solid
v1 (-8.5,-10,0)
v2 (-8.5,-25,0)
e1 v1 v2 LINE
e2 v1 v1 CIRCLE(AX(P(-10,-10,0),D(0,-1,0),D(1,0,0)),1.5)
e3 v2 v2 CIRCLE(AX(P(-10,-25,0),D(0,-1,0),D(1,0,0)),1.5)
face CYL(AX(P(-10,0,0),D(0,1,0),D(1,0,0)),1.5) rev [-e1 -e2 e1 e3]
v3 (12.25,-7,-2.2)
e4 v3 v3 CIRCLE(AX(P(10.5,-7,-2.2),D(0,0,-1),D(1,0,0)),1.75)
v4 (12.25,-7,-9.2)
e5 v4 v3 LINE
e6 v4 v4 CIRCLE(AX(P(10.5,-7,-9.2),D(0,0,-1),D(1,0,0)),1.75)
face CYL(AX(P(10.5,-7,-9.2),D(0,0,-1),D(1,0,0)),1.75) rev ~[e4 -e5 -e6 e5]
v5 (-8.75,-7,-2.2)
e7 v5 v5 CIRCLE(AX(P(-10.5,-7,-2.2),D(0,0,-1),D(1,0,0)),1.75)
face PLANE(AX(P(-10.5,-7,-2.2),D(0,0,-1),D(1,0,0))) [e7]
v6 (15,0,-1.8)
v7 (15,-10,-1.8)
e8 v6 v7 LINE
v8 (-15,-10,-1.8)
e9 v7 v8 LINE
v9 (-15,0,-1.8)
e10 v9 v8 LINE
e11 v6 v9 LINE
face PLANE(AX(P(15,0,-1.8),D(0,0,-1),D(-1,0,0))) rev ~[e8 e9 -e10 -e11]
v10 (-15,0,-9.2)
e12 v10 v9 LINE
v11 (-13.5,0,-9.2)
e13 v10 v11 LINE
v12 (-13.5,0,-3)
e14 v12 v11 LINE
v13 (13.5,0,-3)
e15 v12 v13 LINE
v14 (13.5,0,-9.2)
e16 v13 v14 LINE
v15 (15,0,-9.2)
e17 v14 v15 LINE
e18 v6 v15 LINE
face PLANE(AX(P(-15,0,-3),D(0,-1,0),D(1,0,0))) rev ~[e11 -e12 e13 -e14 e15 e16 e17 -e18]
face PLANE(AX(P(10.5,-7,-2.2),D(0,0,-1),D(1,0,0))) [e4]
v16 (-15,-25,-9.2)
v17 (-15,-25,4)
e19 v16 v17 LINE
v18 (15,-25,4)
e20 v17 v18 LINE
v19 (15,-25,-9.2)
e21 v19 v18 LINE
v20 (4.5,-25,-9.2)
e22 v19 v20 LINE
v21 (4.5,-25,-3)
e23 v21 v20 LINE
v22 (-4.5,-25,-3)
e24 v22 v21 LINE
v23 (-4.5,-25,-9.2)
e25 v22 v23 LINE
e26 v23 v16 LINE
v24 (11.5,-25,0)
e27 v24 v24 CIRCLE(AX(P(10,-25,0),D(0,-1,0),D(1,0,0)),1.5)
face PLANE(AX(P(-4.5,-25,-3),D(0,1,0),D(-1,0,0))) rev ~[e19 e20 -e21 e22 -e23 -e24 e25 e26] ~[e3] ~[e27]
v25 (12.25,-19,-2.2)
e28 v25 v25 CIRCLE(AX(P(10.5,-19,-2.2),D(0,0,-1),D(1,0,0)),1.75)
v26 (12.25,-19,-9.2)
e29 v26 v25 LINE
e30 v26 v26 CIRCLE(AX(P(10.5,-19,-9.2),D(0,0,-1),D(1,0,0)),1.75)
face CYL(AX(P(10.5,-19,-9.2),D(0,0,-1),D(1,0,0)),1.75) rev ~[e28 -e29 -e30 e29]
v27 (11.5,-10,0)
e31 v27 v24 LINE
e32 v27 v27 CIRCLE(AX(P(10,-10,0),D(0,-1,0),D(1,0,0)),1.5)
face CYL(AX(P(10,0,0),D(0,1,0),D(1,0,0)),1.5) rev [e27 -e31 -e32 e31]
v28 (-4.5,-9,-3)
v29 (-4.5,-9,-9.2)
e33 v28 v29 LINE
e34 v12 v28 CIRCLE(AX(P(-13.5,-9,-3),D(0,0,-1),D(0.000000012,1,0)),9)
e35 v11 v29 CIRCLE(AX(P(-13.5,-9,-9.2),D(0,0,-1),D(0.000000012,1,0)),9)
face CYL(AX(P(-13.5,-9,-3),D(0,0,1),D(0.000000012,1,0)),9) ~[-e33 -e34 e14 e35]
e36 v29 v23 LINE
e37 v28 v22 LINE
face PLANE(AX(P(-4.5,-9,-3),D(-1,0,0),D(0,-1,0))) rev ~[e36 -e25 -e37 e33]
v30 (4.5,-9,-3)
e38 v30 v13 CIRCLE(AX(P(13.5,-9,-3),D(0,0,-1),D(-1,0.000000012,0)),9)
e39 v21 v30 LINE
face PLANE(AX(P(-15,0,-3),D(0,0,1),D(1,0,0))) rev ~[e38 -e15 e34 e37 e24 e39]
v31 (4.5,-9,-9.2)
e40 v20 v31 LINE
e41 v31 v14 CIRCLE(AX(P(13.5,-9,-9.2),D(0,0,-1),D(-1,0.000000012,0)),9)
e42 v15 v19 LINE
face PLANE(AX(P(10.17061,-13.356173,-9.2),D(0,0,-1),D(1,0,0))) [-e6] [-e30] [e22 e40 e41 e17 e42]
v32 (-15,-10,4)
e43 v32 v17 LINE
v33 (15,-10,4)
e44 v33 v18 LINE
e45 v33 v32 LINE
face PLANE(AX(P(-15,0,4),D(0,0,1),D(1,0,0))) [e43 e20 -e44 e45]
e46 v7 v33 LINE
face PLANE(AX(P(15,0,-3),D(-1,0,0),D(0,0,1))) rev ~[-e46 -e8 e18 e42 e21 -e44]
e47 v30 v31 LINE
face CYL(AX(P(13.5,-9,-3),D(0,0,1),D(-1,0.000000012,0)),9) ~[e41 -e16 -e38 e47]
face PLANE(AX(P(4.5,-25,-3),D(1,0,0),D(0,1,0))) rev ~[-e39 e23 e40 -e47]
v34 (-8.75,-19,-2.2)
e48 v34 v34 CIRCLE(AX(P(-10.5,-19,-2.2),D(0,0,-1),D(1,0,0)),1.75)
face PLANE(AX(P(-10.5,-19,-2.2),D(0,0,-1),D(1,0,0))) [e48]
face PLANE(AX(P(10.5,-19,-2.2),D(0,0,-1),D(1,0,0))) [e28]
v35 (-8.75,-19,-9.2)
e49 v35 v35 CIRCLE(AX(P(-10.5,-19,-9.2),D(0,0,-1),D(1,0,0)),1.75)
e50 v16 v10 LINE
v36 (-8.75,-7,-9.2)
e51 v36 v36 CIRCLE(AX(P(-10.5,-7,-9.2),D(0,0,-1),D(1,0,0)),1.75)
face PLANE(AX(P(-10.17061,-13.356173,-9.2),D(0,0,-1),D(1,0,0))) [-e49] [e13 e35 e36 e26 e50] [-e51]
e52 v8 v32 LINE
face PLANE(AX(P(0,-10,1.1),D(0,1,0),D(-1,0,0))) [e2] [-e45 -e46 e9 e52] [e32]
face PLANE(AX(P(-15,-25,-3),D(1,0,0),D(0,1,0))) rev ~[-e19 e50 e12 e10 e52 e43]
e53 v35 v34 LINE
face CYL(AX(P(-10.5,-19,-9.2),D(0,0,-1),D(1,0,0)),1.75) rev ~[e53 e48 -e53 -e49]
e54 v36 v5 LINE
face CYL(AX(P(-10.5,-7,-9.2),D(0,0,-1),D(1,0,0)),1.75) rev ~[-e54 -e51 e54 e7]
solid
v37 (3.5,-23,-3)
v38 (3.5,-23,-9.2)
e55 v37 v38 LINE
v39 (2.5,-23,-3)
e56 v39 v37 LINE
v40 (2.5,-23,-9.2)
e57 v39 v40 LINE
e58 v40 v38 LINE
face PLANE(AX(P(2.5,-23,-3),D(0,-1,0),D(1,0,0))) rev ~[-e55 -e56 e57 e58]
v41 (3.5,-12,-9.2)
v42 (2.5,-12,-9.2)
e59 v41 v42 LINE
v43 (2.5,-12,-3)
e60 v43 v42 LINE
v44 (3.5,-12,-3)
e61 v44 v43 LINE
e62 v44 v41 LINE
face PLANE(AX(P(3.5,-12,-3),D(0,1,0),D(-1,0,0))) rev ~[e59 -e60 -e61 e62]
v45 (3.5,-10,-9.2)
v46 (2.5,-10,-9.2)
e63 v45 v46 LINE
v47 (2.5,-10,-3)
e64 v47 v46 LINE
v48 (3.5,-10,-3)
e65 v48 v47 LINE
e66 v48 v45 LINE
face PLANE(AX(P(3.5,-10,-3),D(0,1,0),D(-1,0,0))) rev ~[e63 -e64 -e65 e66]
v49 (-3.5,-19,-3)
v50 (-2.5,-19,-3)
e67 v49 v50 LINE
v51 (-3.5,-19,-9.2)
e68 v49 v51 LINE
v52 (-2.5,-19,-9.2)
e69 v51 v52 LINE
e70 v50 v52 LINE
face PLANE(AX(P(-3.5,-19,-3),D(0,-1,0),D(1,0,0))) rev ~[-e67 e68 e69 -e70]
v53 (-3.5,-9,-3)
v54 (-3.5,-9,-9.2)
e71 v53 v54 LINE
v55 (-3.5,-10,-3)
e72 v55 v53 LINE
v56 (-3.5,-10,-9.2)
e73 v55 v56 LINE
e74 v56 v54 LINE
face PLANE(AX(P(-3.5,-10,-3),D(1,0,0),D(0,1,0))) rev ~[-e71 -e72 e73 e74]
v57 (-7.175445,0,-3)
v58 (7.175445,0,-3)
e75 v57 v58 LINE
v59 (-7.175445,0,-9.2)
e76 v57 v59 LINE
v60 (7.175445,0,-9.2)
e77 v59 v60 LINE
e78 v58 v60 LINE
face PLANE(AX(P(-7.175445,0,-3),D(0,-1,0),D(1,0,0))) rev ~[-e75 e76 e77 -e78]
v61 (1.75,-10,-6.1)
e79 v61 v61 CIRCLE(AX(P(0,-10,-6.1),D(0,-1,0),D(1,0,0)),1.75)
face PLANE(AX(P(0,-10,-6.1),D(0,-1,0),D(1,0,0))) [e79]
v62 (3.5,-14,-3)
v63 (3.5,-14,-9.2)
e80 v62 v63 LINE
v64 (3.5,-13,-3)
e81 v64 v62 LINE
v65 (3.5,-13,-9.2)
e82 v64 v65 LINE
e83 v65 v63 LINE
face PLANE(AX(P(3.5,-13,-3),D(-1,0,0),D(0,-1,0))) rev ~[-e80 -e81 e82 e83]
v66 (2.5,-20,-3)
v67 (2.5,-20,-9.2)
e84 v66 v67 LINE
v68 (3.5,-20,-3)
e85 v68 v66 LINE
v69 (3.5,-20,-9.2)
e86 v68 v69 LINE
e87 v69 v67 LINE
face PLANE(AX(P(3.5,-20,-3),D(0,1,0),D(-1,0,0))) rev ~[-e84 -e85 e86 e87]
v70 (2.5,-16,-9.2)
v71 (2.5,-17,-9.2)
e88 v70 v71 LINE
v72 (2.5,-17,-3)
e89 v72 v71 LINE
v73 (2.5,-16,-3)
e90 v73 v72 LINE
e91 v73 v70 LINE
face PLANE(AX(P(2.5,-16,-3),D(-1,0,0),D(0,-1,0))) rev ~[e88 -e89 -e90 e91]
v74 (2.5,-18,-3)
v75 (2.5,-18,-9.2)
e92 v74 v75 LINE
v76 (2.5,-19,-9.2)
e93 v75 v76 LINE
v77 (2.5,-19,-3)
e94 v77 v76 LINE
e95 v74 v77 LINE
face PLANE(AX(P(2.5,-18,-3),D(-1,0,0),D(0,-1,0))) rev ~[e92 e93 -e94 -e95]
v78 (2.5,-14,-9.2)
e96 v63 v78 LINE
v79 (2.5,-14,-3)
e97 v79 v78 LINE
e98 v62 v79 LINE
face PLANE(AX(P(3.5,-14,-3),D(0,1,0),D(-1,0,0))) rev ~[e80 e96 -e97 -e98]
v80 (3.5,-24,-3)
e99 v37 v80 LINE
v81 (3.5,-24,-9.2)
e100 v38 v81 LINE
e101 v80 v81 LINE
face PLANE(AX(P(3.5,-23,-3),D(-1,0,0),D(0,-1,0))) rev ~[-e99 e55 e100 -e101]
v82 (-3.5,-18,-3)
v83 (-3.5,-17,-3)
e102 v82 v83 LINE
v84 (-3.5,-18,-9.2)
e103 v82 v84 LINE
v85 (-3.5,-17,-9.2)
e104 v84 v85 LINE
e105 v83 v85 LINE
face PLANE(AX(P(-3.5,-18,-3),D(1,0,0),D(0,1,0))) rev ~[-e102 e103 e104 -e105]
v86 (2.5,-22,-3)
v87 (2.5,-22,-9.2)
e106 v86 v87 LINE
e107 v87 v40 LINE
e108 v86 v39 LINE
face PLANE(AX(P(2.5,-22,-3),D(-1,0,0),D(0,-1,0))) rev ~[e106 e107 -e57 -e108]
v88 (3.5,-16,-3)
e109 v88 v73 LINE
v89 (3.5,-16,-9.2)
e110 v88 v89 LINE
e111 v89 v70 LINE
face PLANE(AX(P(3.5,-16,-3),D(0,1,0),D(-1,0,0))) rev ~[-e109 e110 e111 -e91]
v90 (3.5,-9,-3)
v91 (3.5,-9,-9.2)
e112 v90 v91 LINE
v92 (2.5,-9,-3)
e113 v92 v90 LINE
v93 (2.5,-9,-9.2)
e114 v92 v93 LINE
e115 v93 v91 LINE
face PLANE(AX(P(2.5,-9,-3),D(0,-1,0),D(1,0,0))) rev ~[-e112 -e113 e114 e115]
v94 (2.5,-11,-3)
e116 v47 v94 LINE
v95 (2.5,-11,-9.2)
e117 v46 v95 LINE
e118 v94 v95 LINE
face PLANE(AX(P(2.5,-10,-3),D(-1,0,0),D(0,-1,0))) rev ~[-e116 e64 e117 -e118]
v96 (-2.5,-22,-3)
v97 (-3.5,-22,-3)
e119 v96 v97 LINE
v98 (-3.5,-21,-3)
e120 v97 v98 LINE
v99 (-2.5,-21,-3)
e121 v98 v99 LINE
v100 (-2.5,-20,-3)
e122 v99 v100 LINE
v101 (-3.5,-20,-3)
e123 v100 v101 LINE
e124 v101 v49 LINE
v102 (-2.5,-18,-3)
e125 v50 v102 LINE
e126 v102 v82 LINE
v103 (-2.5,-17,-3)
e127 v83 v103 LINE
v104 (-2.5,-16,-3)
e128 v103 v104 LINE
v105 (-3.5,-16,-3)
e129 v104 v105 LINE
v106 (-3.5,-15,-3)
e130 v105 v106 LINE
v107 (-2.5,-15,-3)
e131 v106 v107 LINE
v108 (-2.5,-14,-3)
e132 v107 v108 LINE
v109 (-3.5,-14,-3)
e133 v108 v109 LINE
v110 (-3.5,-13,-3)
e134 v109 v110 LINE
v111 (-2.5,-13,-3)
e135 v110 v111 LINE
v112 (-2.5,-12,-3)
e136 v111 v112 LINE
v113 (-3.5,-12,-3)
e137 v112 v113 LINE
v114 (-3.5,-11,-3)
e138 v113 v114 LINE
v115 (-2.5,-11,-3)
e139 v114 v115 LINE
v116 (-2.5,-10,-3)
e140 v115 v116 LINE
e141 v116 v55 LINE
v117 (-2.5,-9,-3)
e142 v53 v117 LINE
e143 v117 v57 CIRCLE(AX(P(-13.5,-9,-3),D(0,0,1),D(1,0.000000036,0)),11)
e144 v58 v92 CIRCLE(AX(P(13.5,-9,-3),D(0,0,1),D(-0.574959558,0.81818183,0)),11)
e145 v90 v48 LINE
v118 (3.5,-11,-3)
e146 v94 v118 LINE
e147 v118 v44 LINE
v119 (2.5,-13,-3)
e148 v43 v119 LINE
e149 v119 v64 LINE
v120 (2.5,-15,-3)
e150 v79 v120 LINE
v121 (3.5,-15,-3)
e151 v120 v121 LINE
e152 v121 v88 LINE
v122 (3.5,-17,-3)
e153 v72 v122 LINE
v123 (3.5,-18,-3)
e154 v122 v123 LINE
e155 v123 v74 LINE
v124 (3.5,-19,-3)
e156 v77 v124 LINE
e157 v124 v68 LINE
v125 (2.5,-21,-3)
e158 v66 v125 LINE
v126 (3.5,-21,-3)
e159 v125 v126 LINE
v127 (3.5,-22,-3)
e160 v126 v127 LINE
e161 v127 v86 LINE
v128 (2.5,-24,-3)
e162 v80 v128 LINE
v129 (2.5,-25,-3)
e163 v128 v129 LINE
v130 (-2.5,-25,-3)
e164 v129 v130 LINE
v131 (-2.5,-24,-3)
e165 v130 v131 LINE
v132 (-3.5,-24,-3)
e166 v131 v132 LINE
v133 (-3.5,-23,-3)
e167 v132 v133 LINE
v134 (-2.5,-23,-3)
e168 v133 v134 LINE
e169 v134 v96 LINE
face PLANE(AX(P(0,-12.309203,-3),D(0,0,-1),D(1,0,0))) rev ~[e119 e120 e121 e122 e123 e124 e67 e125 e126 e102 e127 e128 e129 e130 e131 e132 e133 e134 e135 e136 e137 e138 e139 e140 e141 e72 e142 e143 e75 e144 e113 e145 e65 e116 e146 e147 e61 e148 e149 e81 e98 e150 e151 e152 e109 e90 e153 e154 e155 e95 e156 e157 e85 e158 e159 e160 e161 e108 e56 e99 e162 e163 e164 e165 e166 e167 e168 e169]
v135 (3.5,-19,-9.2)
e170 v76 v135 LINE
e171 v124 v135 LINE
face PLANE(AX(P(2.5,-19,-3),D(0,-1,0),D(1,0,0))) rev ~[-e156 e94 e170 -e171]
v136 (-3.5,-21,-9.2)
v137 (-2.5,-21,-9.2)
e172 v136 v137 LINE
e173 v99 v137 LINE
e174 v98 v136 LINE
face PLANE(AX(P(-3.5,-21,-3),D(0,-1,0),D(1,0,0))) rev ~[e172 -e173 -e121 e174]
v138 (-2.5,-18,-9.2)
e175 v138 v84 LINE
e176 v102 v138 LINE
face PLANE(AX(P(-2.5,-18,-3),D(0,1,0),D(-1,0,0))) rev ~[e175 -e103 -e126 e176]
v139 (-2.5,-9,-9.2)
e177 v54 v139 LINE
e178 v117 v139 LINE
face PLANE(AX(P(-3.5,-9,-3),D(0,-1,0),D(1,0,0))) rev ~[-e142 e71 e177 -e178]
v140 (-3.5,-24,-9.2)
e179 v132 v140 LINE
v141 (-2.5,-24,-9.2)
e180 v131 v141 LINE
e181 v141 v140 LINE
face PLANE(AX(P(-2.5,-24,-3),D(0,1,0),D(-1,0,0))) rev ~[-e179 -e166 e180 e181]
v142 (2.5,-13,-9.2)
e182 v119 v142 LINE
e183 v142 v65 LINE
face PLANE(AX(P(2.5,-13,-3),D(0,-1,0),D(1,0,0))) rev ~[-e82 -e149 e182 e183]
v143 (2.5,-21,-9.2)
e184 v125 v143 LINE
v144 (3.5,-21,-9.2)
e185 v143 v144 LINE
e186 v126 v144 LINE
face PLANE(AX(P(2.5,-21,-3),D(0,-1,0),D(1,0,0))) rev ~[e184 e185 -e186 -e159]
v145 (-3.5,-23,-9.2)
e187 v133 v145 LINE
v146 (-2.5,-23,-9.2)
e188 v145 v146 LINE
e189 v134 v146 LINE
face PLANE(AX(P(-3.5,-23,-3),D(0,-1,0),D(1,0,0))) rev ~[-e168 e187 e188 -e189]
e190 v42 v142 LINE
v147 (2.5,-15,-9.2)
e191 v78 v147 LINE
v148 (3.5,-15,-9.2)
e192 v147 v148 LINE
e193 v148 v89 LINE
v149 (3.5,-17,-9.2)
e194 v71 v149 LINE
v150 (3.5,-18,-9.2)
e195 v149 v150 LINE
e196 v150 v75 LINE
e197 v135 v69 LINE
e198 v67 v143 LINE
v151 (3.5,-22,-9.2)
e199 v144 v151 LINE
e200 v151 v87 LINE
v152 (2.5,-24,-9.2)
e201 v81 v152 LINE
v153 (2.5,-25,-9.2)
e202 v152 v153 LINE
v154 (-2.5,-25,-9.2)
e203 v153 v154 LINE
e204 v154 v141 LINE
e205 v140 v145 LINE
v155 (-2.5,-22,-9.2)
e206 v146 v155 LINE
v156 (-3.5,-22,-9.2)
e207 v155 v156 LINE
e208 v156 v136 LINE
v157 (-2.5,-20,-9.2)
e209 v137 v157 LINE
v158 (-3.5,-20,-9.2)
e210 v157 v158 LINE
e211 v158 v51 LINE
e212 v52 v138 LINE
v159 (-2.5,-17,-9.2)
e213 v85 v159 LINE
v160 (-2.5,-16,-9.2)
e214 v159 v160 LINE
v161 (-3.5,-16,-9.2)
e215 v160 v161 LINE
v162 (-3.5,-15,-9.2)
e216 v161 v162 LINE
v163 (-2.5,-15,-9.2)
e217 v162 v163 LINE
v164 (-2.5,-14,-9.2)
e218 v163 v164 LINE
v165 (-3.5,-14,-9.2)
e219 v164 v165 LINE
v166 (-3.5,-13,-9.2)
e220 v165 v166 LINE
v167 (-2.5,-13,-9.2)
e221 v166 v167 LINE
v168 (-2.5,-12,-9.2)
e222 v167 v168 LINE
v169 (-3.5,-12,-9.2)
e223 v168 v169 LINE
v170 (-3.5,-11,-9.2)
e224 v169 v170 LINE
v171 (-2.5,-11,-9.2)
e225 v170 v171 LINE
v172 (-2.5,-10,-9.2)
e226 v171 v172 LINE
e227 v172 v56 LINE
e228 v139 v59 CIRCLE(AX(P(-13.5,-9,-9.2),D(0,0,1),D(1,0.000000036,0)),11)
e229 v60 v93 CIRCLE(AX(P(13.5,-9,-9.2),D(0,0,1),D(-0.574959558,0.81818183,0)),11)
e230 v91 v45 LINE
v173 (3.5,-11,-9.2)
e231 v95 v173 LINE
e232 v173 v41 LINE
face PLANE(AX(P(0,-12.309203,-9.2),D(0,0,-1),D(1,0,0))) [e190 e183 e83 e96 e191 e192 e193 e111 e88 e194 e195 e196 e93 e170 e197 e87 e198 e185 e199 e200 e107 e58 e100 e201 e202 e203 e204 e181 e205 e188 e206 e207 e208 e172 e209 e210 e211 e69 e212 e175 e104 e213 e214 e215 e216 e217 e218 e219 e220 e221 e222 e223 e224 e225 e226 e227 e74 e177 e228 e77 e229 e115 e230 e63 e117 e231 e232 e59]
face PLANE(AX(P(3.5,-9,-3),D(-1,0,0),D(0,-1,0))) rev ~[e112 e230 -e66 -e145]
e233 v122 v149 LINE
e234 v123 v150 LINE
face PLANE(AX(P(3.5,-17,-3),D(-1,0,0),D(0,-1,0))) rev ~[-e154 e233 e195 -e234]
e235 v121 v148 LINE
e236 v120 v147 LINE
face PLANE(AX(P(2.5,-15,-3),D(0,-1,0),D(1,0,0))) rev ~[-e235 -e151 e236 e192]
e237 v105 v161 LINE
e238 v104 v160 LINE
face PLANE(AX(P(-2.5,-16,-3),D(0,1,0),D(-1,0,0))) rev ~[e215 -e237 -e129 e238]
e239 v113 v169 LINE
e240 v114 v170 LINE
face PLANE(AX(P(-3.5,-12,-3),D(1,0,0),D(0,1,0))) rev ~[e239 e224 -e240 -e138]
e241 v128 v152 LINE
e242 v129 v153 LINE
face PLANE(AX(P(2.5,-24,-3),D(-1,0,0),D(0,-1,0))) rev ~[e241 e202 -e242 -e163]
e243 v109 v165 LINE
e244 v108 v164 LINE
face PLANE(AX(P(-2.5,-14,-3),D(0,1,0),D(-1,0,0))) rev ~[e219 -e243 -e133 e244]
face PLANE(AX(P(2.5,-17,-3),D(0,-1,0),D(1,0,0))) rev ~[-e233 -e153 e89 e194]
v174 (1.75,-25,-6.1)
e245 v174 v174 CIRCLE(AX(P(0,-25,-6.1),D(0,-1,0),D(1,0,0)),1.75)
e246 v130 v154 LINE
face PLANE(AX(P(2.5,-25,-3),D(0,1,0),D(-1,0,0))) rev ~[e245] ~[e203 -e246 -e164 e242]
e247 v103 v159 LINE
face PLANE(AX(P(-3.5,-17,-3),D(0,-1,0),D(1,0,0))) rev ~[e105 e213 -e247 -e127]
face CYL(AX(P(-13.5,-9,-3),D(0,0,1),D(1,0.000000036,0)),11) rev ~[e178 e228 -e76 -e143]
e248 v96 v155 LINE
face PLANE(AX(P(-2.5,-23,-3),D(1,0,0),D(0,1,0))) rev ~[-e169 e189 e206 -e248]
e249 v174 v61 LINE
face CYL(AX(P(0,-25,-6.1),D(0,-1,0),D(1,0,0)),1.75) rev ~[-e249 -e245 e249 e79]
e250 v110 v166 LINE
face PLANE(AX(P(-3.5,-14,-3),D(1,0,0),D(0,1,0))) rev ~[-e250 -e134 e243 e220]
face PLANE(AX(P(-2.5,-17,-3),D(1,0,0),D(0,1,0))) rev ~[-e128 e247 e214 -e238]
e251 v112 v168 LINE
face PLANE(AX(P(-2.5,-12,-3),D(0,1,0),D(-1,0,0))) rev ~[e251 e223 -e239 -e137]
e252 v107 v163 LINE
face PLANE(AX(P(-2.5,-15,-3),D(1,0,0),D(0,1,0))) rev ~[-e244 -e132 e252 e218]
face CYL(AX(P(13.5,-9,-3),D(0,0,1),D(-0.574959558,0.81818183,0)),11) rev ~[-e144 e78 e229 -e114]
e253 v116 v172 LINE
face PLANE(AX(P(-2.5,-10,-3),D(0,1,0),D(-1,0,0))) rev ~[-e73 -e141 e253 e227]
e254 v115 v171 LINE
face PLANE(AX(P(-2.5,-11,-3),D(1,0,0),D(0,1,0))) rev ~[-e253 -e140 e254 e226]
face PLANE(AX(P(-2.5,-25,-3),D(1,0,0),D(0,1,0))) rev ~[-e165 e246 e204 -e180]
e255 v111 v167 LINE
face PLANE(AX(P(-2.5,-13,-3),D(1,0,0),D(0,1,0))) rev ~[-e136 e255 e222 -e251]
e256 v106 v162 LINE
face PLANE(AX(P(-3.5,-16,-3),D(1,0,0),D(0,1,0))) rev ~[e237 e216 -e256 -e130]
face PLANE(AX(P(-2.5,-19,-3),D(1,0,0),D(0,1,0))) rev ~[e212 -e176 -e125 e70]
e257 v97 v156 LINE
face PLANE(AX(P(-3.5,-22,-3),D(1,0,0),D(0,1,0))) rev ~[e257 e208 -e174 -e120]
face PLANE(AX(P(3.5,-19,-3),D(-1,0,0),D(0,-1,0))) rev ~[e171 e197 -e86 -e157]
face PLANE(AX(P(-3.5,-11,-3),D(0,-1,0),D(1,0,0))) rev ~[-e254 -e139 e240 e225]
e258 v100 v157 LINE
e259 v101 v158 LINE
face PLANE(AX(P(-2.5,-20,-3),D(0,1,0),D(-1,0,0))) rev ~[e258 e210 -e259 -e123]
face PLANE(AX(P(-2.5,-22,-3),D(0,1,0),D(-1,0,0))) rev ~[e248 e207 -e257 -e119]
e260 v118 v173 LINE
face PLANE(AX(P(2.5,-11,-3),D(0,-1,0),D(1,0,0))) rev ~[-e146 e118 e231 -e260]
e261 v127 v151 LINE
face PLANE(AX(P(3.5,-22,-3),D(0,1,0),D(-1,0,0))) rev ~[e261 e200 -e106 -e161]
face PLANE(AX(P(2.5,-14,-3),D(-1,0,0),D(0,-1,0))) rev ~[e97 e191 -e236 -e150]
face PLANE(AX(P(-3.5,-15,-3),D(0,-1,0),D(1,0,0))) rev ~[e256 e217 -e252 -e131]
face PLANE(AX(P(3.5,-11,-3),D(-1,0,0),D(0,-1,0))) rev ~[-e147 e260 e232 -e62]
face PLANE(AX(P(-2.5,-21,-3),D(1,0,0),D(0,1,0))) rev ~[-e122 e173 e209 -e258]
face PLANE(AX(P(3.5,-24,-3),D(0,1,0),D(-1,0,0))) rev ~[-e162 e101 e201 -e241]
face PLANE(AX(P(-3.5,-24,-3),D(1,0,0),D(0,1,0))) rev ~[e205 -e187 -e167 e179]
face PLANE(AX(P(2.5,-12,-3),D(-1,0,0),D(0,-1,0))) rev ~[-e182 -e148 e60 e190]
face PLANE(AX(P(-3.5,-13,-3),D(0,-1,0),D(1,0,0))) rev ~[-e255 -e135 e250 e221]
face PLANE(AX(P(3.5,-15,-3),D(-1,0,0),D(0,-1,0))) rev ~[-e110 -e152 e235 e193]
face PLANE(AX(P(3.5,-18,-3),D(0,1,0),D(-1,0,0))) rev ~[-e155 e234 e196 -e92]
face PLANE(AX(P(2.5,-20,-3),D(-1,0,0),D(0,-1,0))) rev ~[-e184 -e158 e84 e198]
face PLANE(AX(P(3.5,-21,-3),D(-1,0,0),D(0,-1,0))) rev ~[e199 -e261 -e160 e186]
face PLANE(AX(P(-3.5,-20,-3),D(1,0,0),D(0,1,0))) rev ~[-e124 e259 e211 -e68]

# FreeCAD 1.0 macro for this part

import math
import FreeCAD as App
import Part
import Sketcher
from FreeCAD import Vector

doc = App.newDocument("Part")
params = doc.addObject("Spreadsheet::Sheet", "Params")
for row, (alias, value) in enumerate([
    ("sketch1_diameter", "3 mm"),
    ("sketch1_width", "30 mm"),
    ("sketch1_height", "7 mm"),
    ("pad1_length", "25 mm"),
    ("sketch2_radius", "9 mm"),
    ("sketch2_height", "16 mm"),
    ("sketch2_width", "1.5 mm"),
    ("pad2_length", "6.2 mm"),
    ("sketch3_diameter", "3.5 mm"),
    ("pocket1_length", "7 mm"),
    ("sketch4_diameter", "3 mm"),
    ("sketch4_width", "30 mm"),
    ("sketch4_height", "5.8 mm"),
    ("pocket2_length", "10 mm"),
    ("sketch5_radius", "11 mm"),
    ("sketch5_width", "1 mm"),
    ("sketch5_width2", "5 mm"),
    ("pad3_length", "6.2 mm"),
    ("sketch6_diameter", "3.5 mm"),
    ("pocket3_length", "15 mm"),
], start=1):
    params.set(f"A{row}", alias)
    params.set(f"B{row}", "=" + value)
    params.setAlias(f"B{row}", alias)

body = doc.addObject("PartDesign::Body", "Body")

sketch1 = doc.addObject("Sketcher::SketchObject", "Sketch")
body.addObject(sketch1)
sketch1.AttachmentSupport = (doc.XZ_Plane, [""])
sketch1.MapMode = "FlatFace"
sketch1.addGeometry([
    Part.LineSegment(Vector(-15, 4, 0), Vector(-15, -3, 0)),
    Part.LineSegment(Vector(-15, -3, 0), Vector(15, -3, 0)),
    Part.LineSegment(Vector(15, -3, 0), Vector(15, 4, 0)),
    Part.LineSegment(Vector(15, 4, 0), Vector(-15, 4, 0)),
    Part.Circle(Vector(-10, 0, 0), Vector(0, 0, 1), 1.5),
    Part.Circle(Vector(10, 0, 0), Vector(0, 0, 1), 1.5),
], False)
sketch1.addConstraint([
    Sketcher.Constraint("Coincident", 0, 2, 1, 1),
    Sketcher.Constraint("Coincident", 1, 2, 2, 1),
    Sketcher.Constraint("Coincident", 2, 2, 3, 1),
    Sketcher.Constraint("Coincident", 3, 2, 0, 1),
    Sketcher.Constraint("Vertical", 0),
    Sketcher.Constraint("Horizontal", 1),
    Sketcher.Constraint("Vertical", 2),
    Sketcher.Constraint("Horizontal", 3),
    Sketcher.Constraint("Equal", 4, 5),
    Sketcher.Constraint("Symmetric", 4, 3, 5, 3, -1, 1),
    Sketcher.Constraint("PointOnObject", 4, 3, -1),
    Sketcher.Constraint("Diameter", 4, 3.0),
    Sketcher.Constraint("DistanceX", 1, 1, 1, 2, 30.0),
    Sketcher.Constraint("DistanceY", 0, 2, 0, 1, 7.0),
    Sketcher.Constraint("DistanceX", 4, 3, -1, 1, 10.0),
    Sketcher.Constraint("DistanceX", 0, 2, -1, 1, 15.0),
    Sketcher.Constraint("DistanceY", 0, 2, -1, 1, 3.0),
])
sketch1.setExpression("Constraints[11]", "Params.sketch1_diameter")
sketch1.setExpression("Constraints[12]", "Params.sketch1_width")
sketch1.setExpression("Constraints[13]", "Params.sketch1_height")
pad1 = doc.addObject("PartDesign::Pad", "Pad")
body.addObject(pad1)
pad1.Profile = sketch1
pad1.setExpression("Length", "Params.pad1_length")

sketch2 = doc.addObject("Sketcher::SketchObject", "Sketch001")
body.addObject(sketch2)
sketch2.AttachmentSupport = (doc.XY_Plane, [""])
sketch2.MapMode = "FlatFace"
sketch2.AttachmentOffset = App.Placement(Vector(0, 0, -3), App.Rotation())
sketch2.addGeometry([
    Part.LineSegment(Vector(-15, 0, 0), Vector(-13.5, 0, 0)),
    Part.ArcOfCircle(Part.Circle(Vector(-13.5, -9, 0), Vector(0, 0, 1), 9), math.radians(0), math.radians(90)),
    Part.LineSegment(Vector(-4.5, -9, 0), Vector(-4.5, -25, 0)),
    Part.LineSegment(Vector(-4.5, -25, 0), Vector(-15, -25, 0)),
    Part.LineSegment(Vector(-15, -25, 0), Vector(-15, 0, 0)),
    Part.LineSegment(Vector(4.5, -25, 0), Vector(4.5, -9, 0)),
    Part.ArcOfCircle(Part.Circle(Vector(13.5, -9, 0), Vector(0, 0, 1), 9), math.radians(90), math.radians(180)),
    Part.LineSegment(Vector(13.5, 0, 0), Vector(15, 0, 0)),
    Part.LineSegment(Vector(15, 0, 0), Vector(15, -25, 0)),
    Part.LineSegment(Vector(15, -25, 0), Vector(4.5, -25, 0)),
], False)
sketch2.addConstraint([
    Sketcher.Constraint("Tangent", 0, 2, 1, 2),
    Sketcher.Constraint("Tangent", 1, 1, 2, 1),
    Sketcher.Constraint("Coincident", 2, 2, 3, 1),
    Sketcher.Constraint("Coincident", 3, 2, 4, 1),
    Sketcher.Constraint("Coincident", 4, 2, 0, 1),
    Sketcher.Constraint("Tangent", 5, 2, 6, 2),
    Sketcher.Constraint("Tangent", 6, 1, 7, 1),
    Sketcher.Constraint("Coincident", 7, 2, 8, 1),
    Sketcher.Constraint("Coincident", 8, 2, 9, 1),
    Sketcher.Constraint("Coincident", 9, 2, 5, 1),
    Sketcher.Constraint("Horizontal", 0),
    Sketcher.Constraint("Vertical", 2),
    Sketcher.Constraint("Horizontal", 3),
    Sketcher.Constraint("Vertical", 4),
    Sketcher.Constraint("Vertical", 5),
    Sketcher.Constraint("Horizontal", 7),
    Sketcher.Constraint("Vertical", 8),
    Sketcher.Constraint("Horizontal", 9),
    Sketcher.Constraint("Equal", 1, 6),
    Sketcher.Constraint("Symmetric", 0, 2, 6, 1, -1, 1),
    Sketcher.Constraint("Symmetric", 4, 2, 7, 2, -2),
    Sketcher.Constraint("Horizontal", 3, 2, 8, 2),
    Sketcher.Constraint("Radius", 1, 9.0),
    Sketcher.Constraint("DistanceY", 2, 2, 2, 1, 16.0),
    Sketcher.Constraint("DistanceX", 0, 1, 0, 2, 1.5),
    Sketcher.Constraint("DistanceX", 3, 2, -1, 1, 15.0),
])
sketch2.setExpression("Constraints[22]", "Params.sketch2_radius")
sketch2.setExpression("Constraints[23]", "Params.sketch2_height")
sketch2.setExpression("Constraints[24]", "Params.sketch2_width")
pad2 = doc.addObject("PartDesign::Pad", "Pad001")
body.addObject(pad2)
pad2.Profile = sketch2
pad2.setExpression("Length", "Params.pad2_length")
pad2.Reversed = True

sketch3 = doc.addObject("Sketcher::SketchObject", "Sketch002")
body.addObject(sketch3)
sketch3.AttachmentSupport = (doc.XY_Plane, [""])
sketch3.MapMode = "FlatFace"
sketch3.AttachmentOffset = App.Placement(Vector(0, 0, -9.2), App.Rotation())
sketch3.addGeometry([
    Part.Circle(Vector(10.5, -7, 0), Vector(0, 0, 1), 1.8),
    Part.Circle(Vector(10.5, -19, 0), Vector(0, 0, 1), 1.8),
    Part.Circle(Vector(-10.5, -7, 0), Vector(0, 0, 1), 1.8),
    Part.Circle(Vector(-10.5, -19, 0), Vector(0, 0, 1), 1.8),
], False)
sketch3.addConstraint([
    Sketcher.Constraint("Equal", 0, 1),
    Sketcher.Constraint("Equal", 1, 2),
    Sketcher.Constraint("Equal", 2, 3),
    Sketcher.Constraint("Symmetric", 0, 3, 2, 3, -2),
    Sketcher.Constraint("Symmetric", 1, 3, 3, 3, -2),
    Sketcher.Constraint("Vertical", 0, 3, 1, 3),
    Sketcher.Constraint("Diameter", 0, 3.5),
    Sketcher.Constraint("DistanceY", 0, 3, -1, 1, 7.0),
    Sketcher.Constraint("DistanceY", 1, 3, -1, 1, 19.0),
    Sketcher.Constraint("DistanceX", 2, 3, 0, 3, 21.0),
])
sketch3.setExpression("Constraints[6]", "Params.sketch3_diameter")
pocket1 = doc.addObject("PartDesign::Pocket", "Pocket")
body.addObject(pocket1)
pocket1.Profile = sketch3
pocket1.setExpression("Length", "Params.pocket1_length")
pocket1.Reversed = True

sketch4 = doc.addObject("Sketcher::SketchObject", "Sketch003")
body.addObject(sketch4)
sketch4.AttachmentSupport = (doc.XZ_Plane, [""])
sketch4.MapMode = "FlatFace"
sketch4.addGeometry([
    Part.LineSegment(Vector(15, 4, 0), Vector(15, -1.8, 0)),
    Part.LineSegment(Vector(15, -1.8, 0), Vector(-15, -1.8, 0)),
    Part.LineSegment(Vector(-15, -1.8, 0), Vector(-15, 4, 0)),
    Part.LineSegment(Vector(-15, 4, 0), Vector(15, 4, 0)),
    Part.Circle(Vector(10, 0, 0), Vector(0, 0, 1), 1.5),
    Part.Circle(Vector(-10, 0, 0), Vector(0, 0, 1), 1.5),
], False)
sketch4.addConstraint([
    Sketcher.Constraint("Coincident", 0, 2, 1, 1),
    Sketcher.Constraint("Coincident", 1, 2, 2, 1),
    Sketcher.Constraint("Coincident", 2, 2, 3, 1),
    Sketcher.Constraint("Coincident", 3, 2, 0, 1),
    Sketcher.Constraint("Vertical", 0),
    Sketcher.Constraint("Horizontal", 1),
    Sketcher.Constraint("Vertical", 2),
    Sketcher.Constraint("Horizontal", 3),
    Sketcher.Constraint("Equal", 4, 5),
    Sketcher.Constraint("Symmetric", 4, 3, 5, 3, -1, 1),
    Sketcher.Constraint("PointOnObject", 4, 3, -1),
    Sketcher.Constraint("Diameter", 4, 3.0),
    Sketcher.Constraint("DistanceX", 1, 2, 1, 1, 30.0),
    Sketcher.Constraint("DistanceY", 0, 2, 0, 1, 5.8),
    Sketcher.Constraint("DistanceX", -1, 1, 4, 3, 10.0),
    Sketcher.Constraint("DistanceX", -1, 1, 0, 2, 15.0),
    Sketcher.Constraint("DistanceY", -1, 1, 2, 2, 4.0),
])
sketch4.setExpression("Constraints[11]", "Params.sketch4_diameter")
sketch4.setExpression("Constraints[12]", "Params.sketch4_width")
sketch4.setExpression("Constraints[13]", "Params.sketch4_height")
pocket2 = doc.addObject("PartDesign::Pocket", "Pocket001")
body.addObject(pocket2)
pocket2.Profile = sketch4
pocket2.setExpression("Length", "Params.pocket2_length")
pocket2.Reversed = True
body2 = doc.addObject("PartDesign::Body", "Body001")

sketch5 = doc.addObject("Sketcher::SketchObject", "Sketch004")
body2.addObject(sketch5)
sketch5.AttachmentSupport = (doc.getObject("XY_Plane001"), [""])
sketch5.MapMode = "FlatFace"
sketch5.AttachmentOffset = App.Placement(Vector(0, 0, -3), App.Rotation())
sketch5.addGeometry([
    Part.ArcOfCircle(Part.Circle(Vector(-13.5, -9, 0), Vector(0, 0, 1), 11), math.radians(0), math.radians(55)),
    Part.LineSegment(Vector(-7.2, 0, 0), Vector(7.2, 0, 0)),
    Part.ArcOfCircle(Part.Circle(Vector(13.5, -9, 0), Vector(0, 0, 1), 11), math.radians(125), math.radians(180)),
    Part.LineSegment(Vector(2.5, -9, 0), Vector(3.5, -9, 0)),
    Part.LineSegment(Vector(3.5, -9, 0), Vector(3.5, -10, 0)),
    Part.LineSegment(Vector(3.5, -10, 0), Vector(2.5, -10, 0)),
    Part.LineSegment(Vector(2.5, -10, 0), Vector(2.5, -11, 0)),
    Part.LineSegment(Vector(2.5, -11, 0), Vector(3.5, -11, 0)),
    Part.LineSegment(Vector(3.5, -11, 0), Vector(3.5, -12, 0)),
    Part.LineSegment(Vector(3.5, -12, 0), Vector(2.5, -12, 0)),
    Part.LineSegment(Vector(2.5, -12, 0), Vector(2.5, -13, 0)),
    Part.LineSegment(Vector(2.5, -13, 0), Vector(3.5, -13, 0)),
    Part.LineSegment(Vector(3.5, -13, 0), Vector(3.5, -14, 0)),
    Part.LineSegment(Vector(3.5, -14, 0), Vector(2.5, -14, 0)),
    Part.LineSegment(Vector(2.5, -14, 0), Vector(2.5, -15, 0)),
    Part.LineSegment(Vector(2.5, -15, 0), Vector(3.5, -15, 0)),
    Part.LineSegment(Vector(3.5, -15, 0), Vector(3.5, -16, 0)),
    Part.LineSegment(Vector(3.5, -16, 0), Vector(2.5, -16, 0)),
    Part.LineSegment(Vector(2.5, -16, 0), Vector(2.5, -17, 0)),
    Part.LineSegment(Vector(2.5, -17, 0), Vector(3.5, -17, 0)),
    Part.LineSegment(Vector(3.5, -17, 0), Vector(3.5, -18, 0)),
    Part.LineSegment(Vector(3.5, -18, 0), Vector(2.5, -18, 0)),
    Part.LineSegment(Vector(2.5, -18, 0), Vector(2.5, -19, 0)),
    Part.LineSegment(Vector(2.5, -19, 0), Vector(3.5, -19, 0)),
    Part.LineSegment(Vector(3.5, -19, 0), Vector(3.5, -20, 0)),
    Part.LineSegment(Vector(3.5, -20, 0), Vector(2.5, -20, 0)),
    Part.LineSegment(Vector(2.5, -20, 0), Vector(2.5, -21, 0)),
    Part.LineSegment(Vector(2.5, -21, 0), Vector(3.5, -21, 0)),
    Part.LineSegment(Vector(3.5, -21, 0), Vector(3.5, -22, 0)),
    Part.LineSegment(Vector(3.5, -22, 0), Vector(2.5, -22, 0)),
    Part.LineSegment(Vector(2.5, -22, 0), Vector(2.5, -23, 0)),
    Part.LineSegment(Vector(2.5, -23, 0), Vector(3.5, -23, 0)),
    Part.LineSegment(Vector(3.5, -23, 0), Vector(3.5, -24, 0)),
    Part.LineSegment(Vector(3.5, -24, 0), Vector(2.5, -24, 0)),
    Part.LineSegment(Vector(2.5, -24, 0), Vector(2.5, -25, 0)),
    Part.LineSegment(Vector(2.5, -25, 0), Vector(-2.5, -25, 0)),
    Part.LineSegment(Vector(-2.5, -25, 0), Vector(-2.5, -24, 0)),
    Part.LineSegment(Vector(-2.5, -24, 0), Vector(-3.5, -24, 0)),
    Part.LineSegment(Vector(-3.5, -24, 0), Vector(-3.5, -23, 0)),
    Part.LineSegment(Vector(-3.5, -23, 0), Vector(-2.5, -23, 0)),
    Part.LineSegment(Vector(-2.5, -23, 0), Vector(-2.5, -22, 0)),
    Part.LineSegment(Vector(-2.5, -22, 0), Vector(-3.5, -22, 0)),
    Part.LineSegment(Vector(-3.5, -22, 0), Vector(-3.5, -21, 0)),
    Part.LineSegment(Vector(-3.5, -21, 0), Vector(-2.5, -21, 0)),
    Part.LineSegment(Vector(-2.5, -21, 0), Vector(-2.5, -20, 0)),
    Part.LineSegment(Vector(-2.5, -20, 0), Vector(-3.5, -20, 0)),
    Part.LineSegment(Vector(-3.5, -20, 0), Vector(-3.5, -19, 0)),
    Part.LineSegment(Vector(-3.5, -19, 0), Vector(-2.5, -19, 0)),
    Part.LineSegment(Vector(-2.5, -19, 0), Vector(-2.5, -18, 0)),
    Part.LineSegment(Vector(-2.5, -18, 0), Vector(-3.5, -18, 0)),
    Part.LineSegment(Vector(-3.5, -18, 0), Vector(-3.5, -17, 0)),
    Part.LineSegment(Vector(-3.5, -17, 0), Vector(-2.5, -17, 0)),
    Part.LineSegment(Vector(-2.5, -17, 0), Vector(-2.5, -16, 0)),
    Part.LineSegment(Vector(-2.5, -16, 0), Vector(-3.5, -16, 0)),
    Part.LineSegment(Vector(-3.5, -16, 0), Vector(-3.5, -15, 0)),
    Part.LineSegment(Vector(-3.5, -15, 0), Vector(-2.5, -15, 0)),
    Part.LineSegment(Vector(-2.5, -15, 0), Vector(-2.5, -14, 0)),
    Part.LineSegment(Vector(-2.5, -14, 0), Vector(-3.5, -14, 0)),
    Part.LineSegment(Vector(-3.5, -14, 0), Vector(-3.5, -13, 0)),
    Part.LineSegment(Vector(-3.5, -13, 0), Vector(-2.5, -13, 0)),
    Part.LineSegment(Vector(-2.5, -13, 0), Vector(-2.5, -12, 0)),
    Part.LineSegment(Vector(-2.5, -12, 0), Vector(-3.5, -12, 0)),
    Part.LineSegment(Vector(-3.5, -12, 0), Vector(-3.5, -11, 0)),
    Part.LineSegment(Vector(-3.5, -11, 0), Vector(-2.5, -11, 0)),
    Part.LineSegment(Vector(-2.5, -11, 0), Vector(-2.5, -10, 0)),
    Part.LineSegment(Vector(-2.5, -10, 0), Vector(-3.5, -10, 0)),
    Part.LineSegment(Vector(-3.5, -10, 0), Vector(-3.5, -9, 0)),
    Part.LineSegment(Vector(-3.5, -9, 0), Vector(-2.5, -9, 0)),
], False)
sketch5.addConstraint([
    Sketcher.Constraint("Coincident", 0, 2, 1, 1),
    Sketcher.Constraint("Coincident", 1, 2, 2, 1),
    Sketcher.Constraint("Coincident", 2, 2, 3, 1),
    Sketcher.Constraint("Coincident", 3, 2, 4, 1),
    Sketcher.Constraint("Coincident", 4, 2, 5, 1),
    Sketcher.Constraint("Coincident", 5, 2, 6, 1),
    Sketcher.Constraint("Coincident", 6, 2, 7, 1),
    Sketcher.Constraint("Coincident", 7, 2, 8, 1),
    Sketcher.Constraint("Coincident", 8, 2, 9, 1),
    Sketcher.Constraint("Coincident", 9, 2, 10, 1),
    Sketcher.Constraint("Coincident", 10, 2, 11, 1),
    Sketcher.Constraint("Coincident", 11, 2, 12, 1),
    Sketcher.Constraint("Coincident", 12, 2, 13, 1),
    Sketcher.Constraint("Coincident", 13, 2, 14, 1),
    Sketcher.Constraint("Coincident", 14, 2, 15, 1),
    Sketcher.Constraint("Coincident", 15, 2, 16, 1),
    Sketcher.Constraint("Coincident", 16, 2, 17, 1),
    Sketcher.Constraint("Coincident", 17, 2, 18, 1),
    Sketcher.Constraint("Coincident", 18, 2, 19, 1),
    Sketcher.Constraint("Coincident", 19, 2, 20, 1),
    Sketcher.Constraint("Coincident", 20, 2, 21, 1),
    Sketcher.Constraint("Coincident", 21, 2, 22, 1),
    Sketcher.Constraint("Coincident", 22, 2, 23, 1),
    Sketcher.Constraint("Coincident", 23, 2, 24, 1),
    Sketcher.Constraint("Coincident", 24, 2, 25, 1),
    Sketcher.Constraint("Coincident", 25, 2, 26, 1),
    Sketcher.Constraint("Coincident", 26, 2, 27, 1),
    Sketcher.Constraint("Coincident", 27, 2, 28, 1),
    Sketcher.Constraint("Coincident", 28, 2, 29, 1),
    Sketcher.Constraint("Coincident", 29, 2, 30, 1),
    Sketcher.Constraint("Coincident", 30, 2, 31, 1),
    Sketcher.Constraint("Coincident", 31, 2, 32, 1),
    Sketcher.Constraint("Coincident", 32, 2, 33, 1),
    Sketcher.Constraint("Coincident", 33, 2, 34, 1),
    Sketcher.Constraint("Coincident", 34, 2, 35, 1),
    Sketcher.Constraint("Coincident", 35, 2, 36, 1),
    Sketcher.Constraint("Coincident", 36, 2, 37, 1),
    Sketcher.Constraint("Coincident", 37, 2, 38, 1),
    Sketcher.Constraint("Coincident", 38, 2, 39, 1),
    Sketcher.Constraint("Coincident", 39, 2, 40, 1),
    Sketcher.Constraint("Coincident", 40, 2, 41, 1),
    Sketcher.Constraint("Coincident", 41, 2, 42, 1),
    Sketcher.Constraint("Coincident", 42, 2, 43, 1),
    Sketcher.Constraint("Coincident", 43, 2, 44, 1),
    Sketcher.Constraint("Coincident", 44, 2, 45, 1),
    Sketcher.Constraint("Coincident", 45, 2, 46, 1),
    Sketcher.Constraint("Coincident", 46, 2, 47, 1),
    Sketcher.Constraint("Coincident", 47, 2, 48, 1),
    Sketcher.Constraint("Coincident", 48, 2, 49, 1),
    Sketcher.Constraint("Coincident", 49, 2, 50, 1),
    Sketcher.Constraint("Coincident", 50, 2, 51, 1),
    Sketcher.Constraint("Coincident", 51, 2, 52, 1),
    Sketcher.Constraint("Coincident", 52, 2, 53, 1),
    Sketcher.Constraint("Coincident", 53, 2, 54, 1),
    Sketcher.Constraint("Coincident", 54, 2, 55, 1),
    Sketcher.Constraint("Coincident", 55, 2, 56, 1),
    Sketcher.Constraint("Coincident", 56, 2, 57, 1),
    Sketcher.Constraint("Coincident", 57, 2, 58, 1),
    Sketcher.Constraint("Coincident", 58, 2, 59, 1),
    Sketcher.Constraint("Coincident", 59, 2, 60, 1),
    Sketcher.Constraint("Coincident", 60, 2, 61, 1),
    Sketcher.Constraint("Coincident", 61, 2, 62, 1),
    Sketcher.Constraint("Coincident", 62, 2, 63, 1),
    Sketcher.Constraint("Coincident", 63, 2, 64, 1),
    Sketcher.Constraint("Coincident", 64, 2, 65, 1),
    Sketcher.Constraint("Coincident", 65, 2, 66, 1),
    Sketcher.Constraint("Coincident", 66, 2, 67, 1),
    Sketcher.Constraint("Coincident", 67, 2, 0, 1),
    Sketcher.Constraint("Horizontal", 1),
    Sketcher.Constraint("Horizontal", 3),
    Sketcher.Constraint("Vertical", 4),
    Sketcher.Constraint("Horizontal", 5),
    Sketcher.Constraint("Vertical", 6),
    Sketcher.Constraint("Horizontal", 7),
    Sketcher.Constraint("Vertical", 8),
    Sketcher.Constraint("Horizontal", 9),
    Sketcher.Constraint("Vertical", 10),
    Sketcher.Constraint("Horizontal", 11),
    Sketcher.Constraint("Vertical", 12),
    Sketcher.Constraint("Horizontal", 13),
    Sketcher.Constraint("Vertical", 14),
    Sketcher.Constraint("Horizontal", 15),
    Sketcher.Constraint("Vertical", 16),
    Sketcher.Constraint("Horizontal", 17),
    Sketcher.Constraint("Vertical", 18),
    Sketcher.Constraint("Horizontal", 19),
    Sketcher.Constraint("Vertical", 20),
    Sketcher.Constraint("Horizontal", 21),
    Sketcher.Constraint("Vertical", 22),
    Sketcher.Constraint("Horizontal", 23),
    Sketcher.Constraint("Vertical", 24),
    Sketcher.Constraint("Horizontal", 25),
    Sketcher.Constraint("Vertical", 26),
    Sketcher.Constraint("Horizontal", 27),
    Sketcher.Constraint("Vertical", 28),
    Sketcher.Constraint("Horizontal", 29),
    Sketcher.Constraint("Vertical", 30),
    Sketcher.Constraint("Horizontal", 31),
    Sketcher.Constraint("Vertical", 32),
    Sketcher.Constraint("Horizontal", 33),
    Sketcher.Constraint("Vertical", 34),
    Sketcher.Constraint("Horizontal", 35),
    Sketcher.Constraint("Vertical", 36),
    Sketcher.Constraint("Horizontal", 37),
    Sketcher.Constraint("Vertical", 38),
    Sketcher.Constraint("Horizontal", 39),
    Sketcher.Constraint("Vertical", 40),
    Sketcher.Constraint("Horizontal", 41),
    Sketcher.Constraint("Vertical", 42),
    Sketcher.Constraint("Horizontal", 43),
    Sketcher.Constraint("Vertical", 44),
    Sketcher.Constraint("Horizontal", 45),
    Sketcher.Constraint("Vertical", 46),
    Sketcher.Constraint("Horizontal", 47),
    Sketcher.Constraint("Vertical", 48),
    Sketcher.Constraint("Horizontal", 49),
    Sketcher.Constraint("Vertical", 50),
    Sketcher.Constraint("Horizontal", 51),
    Sketcher.Constraint("Vertical", 52),
    Sketcher.Constraint("Horizontal", 53),
    Sketcher.Constraint("Vertical", 54),
    Sketcher.Constraint("Horizontal", 55),
    Sketcher.Constraint("Vertical", 56),
    Sketcher.Constraint("Horizontal", 57),
    Sketcher.Constraint("Vertical", 58),
    Sketcher.Constraint("Horizontal", 59),
    Sketcher.Constraint("Vertical", 60),
    Sketcher.Constraint("Horizontal", 61),
    Sketcher.Constraint("Vertical", 62),
    Sketcher.Constraint("Horizontal", 63),
    Sketcher.Constraint("Vertical", 64),
    Sketcher.Constraint("Horizontal", 65),
    Sketcher.Constraint("Vertical", 66),
    Sketcher.Constraint("Horizontal", 67),
    Sketcher.Constraint("Equal", 0, 2),
    Sketcher.Constraint("Symmetric", 0, 2, 1, 2, -1, 1),
    Sketcher.Constraint("Symmetric", 33, 2, 36, 2, -2),
    Sketcher.Constraint("Symmetric", 31, 2, 38, 2, -2),
    Sketcher.Constraint("Symmetric", 29, 2, 40, 2, -2),
    Sketcher.Constraint("Symmetric", 27, 2, 42, 2, -2),
    Sketcher.Constraint("Symmetric", 25, 2, 44, 2, -2),
    Sketcher.Constraint("Symmetric", 23, 2, 46, 2, -2),
    Sketcher.Constraint("Symmetric", 21, 2, 48, 2, -2),
    Sketcher.Constraint("Symmetric", 19, 2, 50, 2, -2),
    Sketcher.Constraint("Symmetric", 17, 2, 52, 2, -2),
    Sketcher.Constraint("Symmetric", 15, 2, 54, 2, -2),
    Sketcher.Constraint("Symmetric", 13, 2, 56, 2, -2),
    Sketcher.Constraint("Symmetric", 11, 2, 58, 2, -2),
    Sketcher.Constraint("Symmetric", 9, 2, 60, 2, -2),
    Sketcher.Constraint("Symmetric", 7, 2, 62, 2, -2),
    Sketcher.Constraint("Symmetric", 5, 2, 64, 2, -2),
    Sketcher.Constraint("Symmetric", 3, 2, 66, 2, -2),
    Sketcher.Constraint("Horizontal", 0, 3, 2, 3),
    Sketcher.Constraint("Horizontal", 0, 3, 2, 2),
    Sketcher.Constraint("Vertical", 2, 2, 5, 2),
    Sketcher.Constraint("Vertical", 4, 2, 7, 2),
    Sketcher.Constraint("Vertical", 6, 2, 9, 2),
    Sketcher.Constraint("Vertical", 8, 2, 11, 2),
    Sketcher.Constraint("Vertical", 10, 2, 13, 2),
    Sketcher.Constraint("Vertical", 12, 2, 15, 2),
    Sketcher.Constraint("Vertical", 14, 2, 17, 2),
    Sketcher.Constraint("Vertical", 16, 2, 19, 2),
    Sketcher.Constraint("Vertical", 18, 2, 21, 2),
    Sketcher.Constraint("Vertical", 20, 2, 23, 2),
    Sketcher.Constraint("Vertical", 22, 2, 25, 2),
    Sketcher.Constraint("Vertical", 24, 2, 27, 2),
    Sketcher.Constraint("Vertical", 26, 2, 29, 2),
    Sketcher.Constraint("Vertical", 28, 2, 31, 2),
    Sketcher.Constraint("Vertical", 30, 2, 33, 2),
    Sketcher.Constraint("Equal", 67, 4),
    Sketcher.Constraint("Equal", 4, 6),
    Sketcher.Constraint("Equal", 6, 8),
    Sketcher.Constraint("Equal", 8, 10),
    Sketcher.Constraint("Equal", 10, 12),
    Sketcher.Constraint("Equal", 12, 14),
    Sketcher.Constraint("Equal", 14, 16),
    Sketcher.Constraint("Equal", 16, 18),
    Sketcher.Constraint("Equal", 18, 20),
    Sketcher.Constraint("Equal", 20, 22),
    Sketcher.Constraint("Equal", 22, 24),
    Sketcher.Constraint("Equal", 24, 26),
    Sketcher.Constraint("Equal", 26, 28),
    Sketcher.Constraint("Equal", 28, 30),
    Sketcher.Constraint("Equal", 30, 32),
    Sketcher.Constraint("Equal", 32, 34),
    Sketcher.Constraint("Radius", 0, 11.0),
    Sketcher.Constraint("DistanceX", 3, 1, 3, 2, 1.0),
    Sketcher.Constraint("DistanceX", 35, 2, 35, 1, 5.0),
    Sketcher.Constraint("DistanceY", 0, 3, -1, 1, 9.0),
])
sketch5.setExpression("Constraints[185]", "Params.sketch5_radius")
sketch5.setExpression("Constraints[186]", "Params.sketch5_width")
sketch5.setExpression("Constraints[187]", "Params.sketch5_width2")
pad3 = doc.addObject("PartDesign::Pad", "Pad002")
body2.addObject(pad3)
pad3.Profile = sketch5
pad3.setExpression("Length", "Params.pad3_length")
pad3.Reversed = True

sketch6 = doc.addObject("Sketcher::SketchObject", "Sketch005")
body2.addObject(sketch6)
sketch6.AttachmentSupport = (doc.getObject("XZ_Plane001"), [""])
sketch6.MapMode = "FlatFace"
sketch6.AttachmentOffset = App.Placement(Vector(0, 0, 25), App.Rotation())
sketch6.addGeometry(Part.Circle(Vector(0, -6.1, 0), Vector(0, 0, 1), 1.8), False)
sketch6.addConstraint([
    Sketcher.Constraint("PointOnObject", 0, 3, -2),
    Sketcher.Constraint("Diameter", 0, 3.5),
    Sketcher.Constraint("DistanceY", 0, 3, -1, 1, 6.1),
])
sketch6.setExpression("Constraints[1]", "Params.sketch6_diameter")
pocket3 = doc.addObject("PartDesign::Pocket", "Pocket002")
body2.addObject(pocket3)
pocket3.Profile = sketch6
pocket3.setExpression("Length", "Params.pocket3_length")

doc.recompute()
